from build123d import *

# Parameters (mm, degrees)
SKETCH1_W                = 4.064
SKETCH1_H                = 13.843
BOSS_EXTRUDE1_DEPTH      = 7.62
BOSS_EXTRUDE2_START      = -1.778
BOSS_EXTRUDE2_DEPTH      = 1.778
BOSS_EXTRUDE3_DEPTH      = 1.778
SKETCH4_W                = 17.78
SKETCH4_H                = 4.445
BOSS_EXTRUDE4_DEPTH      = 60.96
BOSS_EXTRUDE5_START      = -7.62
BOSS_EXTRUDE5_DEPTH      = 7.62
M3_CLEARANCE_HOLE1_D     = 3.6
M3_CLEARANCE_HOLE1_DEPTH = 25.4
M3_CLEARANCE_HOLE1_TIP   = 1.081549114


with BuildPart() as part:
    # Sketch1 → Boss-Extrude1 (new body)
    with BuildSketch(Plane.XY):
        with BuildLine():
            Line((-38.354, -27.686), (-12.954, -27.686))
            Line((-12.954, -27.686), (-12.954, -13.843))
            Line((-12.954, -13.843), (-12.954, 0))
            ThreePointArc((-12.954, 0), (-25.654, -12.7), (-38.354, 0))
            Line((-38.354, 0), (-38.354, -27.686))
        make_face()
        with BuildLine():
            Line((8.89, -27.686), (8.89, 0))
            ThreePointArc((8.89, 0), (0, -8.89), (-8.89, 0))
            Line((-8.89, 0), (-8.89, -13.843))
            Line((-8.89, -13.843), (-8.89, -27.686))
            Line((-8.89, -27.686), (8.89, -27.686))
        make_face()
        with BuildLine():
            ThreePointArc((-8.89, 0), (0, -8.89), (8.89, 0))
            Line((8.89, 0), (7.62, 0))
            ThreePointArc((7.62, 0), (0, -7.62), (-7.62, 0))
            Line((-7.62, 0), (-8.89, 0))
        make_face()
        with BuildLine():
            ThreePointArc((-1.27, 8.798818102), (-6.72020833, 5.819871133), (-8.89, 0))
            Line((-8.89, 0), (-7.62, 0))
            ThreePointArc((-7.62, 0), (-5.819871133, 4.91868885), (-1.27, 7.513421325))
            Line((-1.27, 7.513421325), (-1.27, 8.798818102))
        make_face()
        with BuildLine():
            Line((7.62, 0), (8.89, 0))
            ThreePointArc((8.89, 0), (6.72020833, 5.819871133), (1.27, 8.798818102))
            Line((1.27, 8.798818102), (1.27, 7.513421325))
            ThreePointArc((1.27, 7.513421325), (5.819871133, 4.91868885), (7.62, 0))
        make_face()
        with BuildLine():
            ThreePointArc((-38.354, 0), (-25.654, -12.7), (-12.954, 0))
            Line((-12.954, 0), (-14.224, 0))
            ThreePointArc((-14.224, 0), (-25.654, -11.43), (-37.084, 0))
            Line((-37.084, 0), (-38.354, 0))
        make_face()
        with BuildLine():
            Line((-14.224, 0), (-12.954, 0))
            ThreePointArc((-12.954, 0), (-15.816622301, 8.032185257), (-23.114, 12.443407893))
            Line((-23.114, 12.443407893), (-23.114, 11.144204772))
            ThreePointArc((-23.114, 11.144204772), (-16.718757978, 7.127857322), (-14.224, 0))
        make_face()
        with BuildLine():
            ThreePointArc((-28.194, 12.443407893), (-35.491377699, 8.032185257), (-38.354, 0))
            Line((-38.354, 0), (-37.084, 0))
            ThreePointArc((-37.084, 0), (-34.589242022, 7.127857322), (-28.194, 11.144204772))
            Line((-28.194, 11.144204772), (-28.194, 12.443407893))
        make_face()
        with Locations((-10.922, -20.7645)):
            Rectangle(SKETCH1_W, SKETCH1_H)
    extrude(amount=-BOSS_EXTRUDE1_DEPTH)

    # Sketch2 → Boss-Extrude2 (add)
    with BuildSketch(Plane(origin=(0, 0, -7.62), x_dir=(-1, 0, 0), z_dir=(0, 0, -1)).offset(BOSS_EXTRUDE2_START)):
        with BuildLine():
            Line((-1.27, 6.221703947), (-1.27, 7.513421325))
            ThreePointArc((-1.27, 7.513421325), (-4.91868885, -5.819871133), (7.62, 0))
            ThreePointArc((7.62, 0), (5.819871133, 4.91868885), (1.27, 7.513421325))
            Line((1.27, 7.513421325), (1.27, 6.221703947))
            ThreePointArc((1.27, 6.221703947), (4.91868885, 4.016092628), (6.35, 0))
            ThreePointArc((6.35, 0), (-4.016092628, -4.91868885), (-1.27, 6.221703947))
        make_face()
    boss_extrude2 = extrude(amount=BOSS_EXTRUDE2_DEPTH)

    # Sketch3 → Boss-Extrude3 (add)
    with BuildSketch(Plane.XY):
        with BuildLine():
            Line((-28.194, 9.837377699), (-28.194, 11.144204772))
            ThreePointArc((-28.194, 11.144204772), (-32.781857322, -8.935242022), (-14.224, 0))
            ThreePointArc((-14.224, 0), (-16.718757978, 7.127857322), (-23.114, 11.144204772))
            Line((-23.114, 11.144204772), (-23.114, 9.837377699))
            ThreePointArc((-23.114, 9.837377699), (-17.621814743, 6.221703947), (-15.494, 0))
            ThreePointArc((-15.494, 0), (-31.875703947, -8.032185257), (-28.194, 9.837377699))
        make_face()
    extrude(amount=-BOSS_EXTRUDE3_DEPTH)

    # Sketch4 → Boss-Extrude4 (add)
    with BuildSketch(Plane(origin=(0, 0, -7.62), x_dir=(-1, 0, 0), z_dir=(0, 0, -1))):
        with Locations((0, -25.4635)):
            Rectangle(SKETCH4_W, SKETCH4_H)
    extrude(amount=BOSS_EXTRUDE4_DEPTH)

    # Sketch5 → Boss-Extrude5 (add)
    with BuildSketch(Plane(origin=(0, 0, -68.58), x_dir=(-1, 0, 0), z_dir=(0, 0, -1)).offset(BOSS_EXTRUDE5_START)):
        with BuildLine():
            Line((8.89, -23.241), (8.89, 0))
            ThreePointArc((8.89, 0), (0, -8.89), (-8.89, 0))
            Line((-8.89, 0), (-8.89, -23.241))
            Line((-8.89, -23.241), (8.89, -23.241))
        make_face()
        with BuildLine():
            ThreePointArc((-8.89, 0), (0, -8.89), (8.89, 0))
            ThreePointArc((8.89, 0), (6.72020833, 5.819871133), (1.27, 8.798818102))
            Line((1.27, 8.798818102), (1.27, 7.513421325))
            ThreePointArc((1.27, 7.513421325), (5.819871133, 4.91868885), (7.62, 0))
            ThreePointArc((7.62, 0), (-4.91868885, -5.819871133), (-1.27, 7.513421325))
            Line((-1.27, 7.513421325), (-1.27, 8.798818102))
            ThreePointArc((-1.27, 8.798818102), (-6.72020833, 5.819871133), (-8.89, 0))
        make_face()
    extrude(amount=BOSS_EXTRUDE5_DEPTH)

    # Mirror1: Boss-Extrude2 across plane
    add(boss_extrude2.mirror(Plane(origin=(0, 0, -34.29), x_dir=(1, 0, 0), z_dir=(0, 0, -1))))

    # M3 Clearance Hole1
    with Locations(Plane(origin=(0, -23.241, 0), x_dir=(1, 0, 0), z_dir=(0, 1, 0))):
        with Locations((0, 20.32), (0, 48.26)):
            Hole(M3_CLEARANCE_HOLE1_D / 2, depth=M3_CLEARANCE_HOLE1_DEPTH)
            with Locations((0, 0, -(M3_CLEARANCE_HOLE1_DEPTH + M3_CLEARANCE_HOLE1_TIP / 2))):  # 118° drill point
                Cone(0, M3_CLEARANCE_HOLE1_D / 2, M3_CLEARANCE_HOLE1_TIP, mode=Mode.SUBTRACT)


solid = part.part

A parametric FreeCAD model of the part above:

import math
import FreeCAD as App
import Part
import Sketcher
Q = App.Units.Quantity


def add_polygon(sketch, points):
    """Adds a closed chain of lines whose ends are joined by coincident constraints."""
    first, n = sketch.GeometryCount, len(points)
    for a, b in zip(points, points[1:] + points[:1]):
        sketch.addGeometry(Part.LineSegment(App.Vector(*a, 0), App.Vector(*b, 0)), False)
    for i in range(n):
        sketch.addConstraint(Sketcher.Constraint("Coincident", first + i, 2, first + (i + 1) % n, 1))

doc = App.newDocument("Part")
body = doc.addObject("PartDesign::Body", "Body")

sketch1 = body.newObject("Sketcher::SketchObject", "Sketch")
sketch1.AttachmentSupport = (doc.getObject("XY_Plane"), [""])
sketch1.MapMode = "FlatFace"
sketch1.addGeometry([
    Part.LineSegment(App.Vector(-38.354, -27.686, 0), App.Vector(8.89, -27.686, 0)),
    Part.LineSegment(App.Vector(8.89, -27.686, 0), App.Vector(8.89, 0, 0)),
    Part.ArcOfCircle(Part.Circle(App.Vector(0, 0, 0), App.Vector(0, 0, 1), 8.89), math.radians(0), math.radians(81.786789)),
    Part.LineSegment(App.Vector(1.27, 8.798818, 0), App.Vector(1.27, 7.513421, 0)),
    Part.ArcOfCircle(Part.Circle(App.Vector(0, 0, 0), App.Vector(0, 0, 1), 7.62), math.radians(0), math.radians(80.405932)),
    Part.ArcOfCircle(Part.Circle(App.Vector(0, 0, 0), App.Vector(0, 0, 1), 7.62), math.radians(180), math.radians(360)),
    Part.ArcOfCircle(Part.Circle(App.Vector(0, 0, 0), App.Vector(0, 0, 1), 7.62), math.radians(99.594068), math.radians(180)),
    Part.LineSegment(App.Vector(-1.27, 7.513421, 0), App.Vector(-1.27, 8.798818, 0)),
    Part.ArcOfCircle(Part.Circle(App.Vector(0, 0, 0), App.Vector(0, 0, 1), 8.89), math.radians(98.213211), math.radians(180)),
    Part.LineSegment(App.Vector(-8.89, 0, 0), App.Vector(-8.89, -13.843, 0)),
    Part.LineSegment(App.Vector(-8.89, -13.843, 0), App.Vector(-12.954, -13.843, 0)),
    Part.LineSegment(App.Vector(-12.954, -13.843, 0), App.Vector(-12.954, 0, 0)),
    Part.ArcOfCircle(Part.Circle(App.Vector(-25.654, 0, 0), App.Vector(0, 0, 1), 12.7), math.radians(0), math.radians(78.463041)),
    Part.LineSegment(App.Vector(-23.114, 12.443408, 0), App.Vector(-23.114, 11.144205, 0)),
    Part.ArcOfCircle(Part.Circle(App.Vector(-25.654, 0, 0), App.Vector(0, 0, 1), 11.43), math.radians(0), math.radians(77.160412)),
    Part.ArcOfCircle(Part.Circle(App.Vector(-25.654, 0, 0), App.Vector(0, 0, 1), 11.43), math.radians(180), math.radians(360)),
    Part.ArcOfCircle(Part.Circle(App.Vector(-25.654, 0, 0), App.Vector(0, 0, 1), 11.43), math.radians(102.839588), math.radians(180)),
    Part.LineSegment(App.Vector(-28.194, 11.144205, 0), App.Vector(-28.194, 12.443408, 0)),
    Part.ArcOfCircle(Part.Circle(App.Vector(-25.654, 0, 0), App.Vector(0, 0, 1), 12.7), math.radians(101.536959), math.radians(180)),
    Part.LineSegment(App.Vector(-38.354, 0, 0), App.Vector(-38.354, -27.686, 0)),
], False)
sketch1.addConstraint([
    Sketcher.Constraint("Coincident", 0, 2, 1, 1),
    Sketcher.Constraint("Tangent", 1, 2, 2, 1),
    Sketcher.Constraint("Coincident", 2, 2, 3, 1),
    Sketcher.Constraint("Coincident", 3, 2, 4, 2),
    Sketcher.Constraint("Tangent", 4, 1, 5, 2),
    Sketcher.Constraint("Tangent", 5, 1, 6, 2),
    Sketcher.Constraint("Coincident", 6, 1, 7, 1),
    Sketcher.Constraint("Coincident", 7, 2, 8, 1),
    Sketcher.Constraint("Tangent", 8, 2, 9, 1),
    Sketcher.Constraint("Coincident", 9, 2, 10, 1),
    Sketcher.Constraint("Coincident", 10, 2, 11, 1),
    Sketcher.Constraint("Tangent", 11, 2, 12, 1),
    Sketcher.Constraint("Coincident", 12, 2, 13, 1),
    Sketcher.Constraint("Coincident", 13, 2, 14, 2),
    Sketcher.Constraint("Tangent", 14, 1, 15, 2),
    Sketcher.Constraint("Tangent", 15, 1, 16, 2),
    Sketcher.Constraint("Coincident", 16, 1, 17, 1),
    Sketcher.Constraint("Coincident", 17, 2, 18, 1),
    Sketcher.Constraint("Tangent", 18, 2, 19, 1),
    Sketcher.Constraint("Coincident", 19, 2, 0, 1),
    Sketcher.Constraint("Horizontal", 0),
    Sketcher.Constraint("Vertical", 1),
    Sketcher.Constraint("Vertical", 3),
    Sketcher.Constraint("Vertical", 7),
    Sketcher.Constraint("Vertical", 9),
    Sketcher.Constraint("Horizontal", 10),
    Sketcher.Constraint("Vertical", 11),
    Sketcher.Constraint("Vertical", 13),
    Sketcher.Constraint("Vertical", 17),
    Sketcher.Constraint("Vertical", 19),
    Sketcher.Constraint("Coincident", 2, 3, -1, 1),
    Sketcher.Constraint("Coincident", 4, 3, -1, 1),
    Sketcher.Constraint("Coincident", 8, 3, -1, 1),
    Sketcher.Constraint("Coincident", 14, 3, 12, 3),
    Sketcher.Constraint("Coincident", 18, 3, 12, 3),
    Sketcher.Constraint("Equal", 4, 5),
    Sketcher.Constraint("Equal", 5, 6),
    Sketcher.Constraint("Equal", 2, 8),
    Sketcher.Constraint("Equal", 14, 15),
    Sketcher.Constraint("Equal", 15, 16),
    Sketcher.Constraint("Equal", 12, 18),
    Sketcher.Constraint("PointOnObject", 12, 3, -1),
    Sketcher.Constraint("PointOnObject", 4, 1, -1),
    Sketcher.Constraint("PointOnObject", 5, 1, -1),
    Sketcher.Constraint("PointOnObject", 14, 1, -1),
    Sketcher.Constraint("PointOnObject", 15, 1, -1),
    Sketcher.Constraint("Horizontal", 3, 2, 6, 1),
    Sketcher.Constraint("Horizontal", 13, 2, 16, 1),
    Sketcher.Constraint("Radius", 4, Q("0.3 in")),
    Sketcher.Constraint("Radius", 12, Q("0.5 in")),
    Sketcher.Constraint("Radius", 2, Q("0.35 in")),
    Sketcher.Constraint("Radius", 14, Q("0.45 in")),
    Sketcher.Constraint("DistanceX", 0, 1, 0, 2, Q("1.86 in")),
    Sketcher.Constraint("DistanceY", 1, 1, 1, 2, Q("1.09 in")),
    Sketcher.Constraint("DistanceX", 6, 1, 3, 2, Q("0.1 in")),
    Sketcher.Constraint("DistanceX", 12, 3, 12, 2, Q("0.1 in")),
    Sketcher.Constraint("DistanceY", 9, 2, 9, 1, Q("0.545 in")),
])
pad1 = body.newObject("PartDesign::Pad", "Pad")
pad1.Profile = sketch1
pad1.Length = Q("0.3 in")
pad1.Reversed = True

sketch2 = body.newObject("Sketcher::SketchObject", "Sketch001")
sketch2.AttachmentSupport = (doc.getObject("XY_Plane"), [""])
sketch2.MapMode = "FlatFace"
sketch2.AttachmentOffset = App.Placement(App.Vector(0, 0, -0.23 * 25.4), App.Rotation())
sketch2.addGeometry([
    Part.LineSegment(App.Vector(1.27, 6.221704, 0), App.Vector(1.27, 7.513421, 0)),
    Part.ArcOfCircle(Part.Circle(App.Vector(0, 0, 0), App.Vector(0, 0, 1), 7.62), math.radians(180), math.radians(440.405932)),
    Part.ArcOfCircle(Part.Circle(App.Vector(0, 0, 0), App.Vector(0, 0, 1), 7.62), math.radians(99.594068), math.radians(180)),
    Part.LineSegment(App.Vector(-1.27, 7.513421, 0), App.Vector(-1.27, 6.221704, 0)),
    Part.ArcOfCircle(Part.Circle(App.Vector(0, 0, 0), App.Vector(0, 0, 1), 6.35), math.radians(101.536959), math.radians(180)),
    Part.ArcOfCircle(Part.Circle(App.Vector(0, 0, 0), App.Vector(0, 0, 1), 6.35), math.radians(180), math.radians(438.463041)),
], False)
sketch2.addConstraint([
    Sketcher.Constraint("Coincident", 0, 2, 1, 2),
    Sketcher.Constraint("Tangent", 1, 1, 2, 2),
    Sketcher.Constraint("Coincident", 2, 1, 3, 1),
    Sketcher.Constraint("Coincident", 3, 2, 4, 1),
    Sketcher.Constraint("Tangent", 4, 2, 5, 1),
    Sketcher.Constraint("Coincident", 5, 2, 0, 1),
    Sketcher.Constraint("Vertical", 0),
    Sketcher.Constraint("Vertical", 3),
    Sketcher.Constraint("Coincident", 1, 3, -1, 1),
    Sketcher.Constraint("Coincident", 4, 3, -1, 1),
    Sketcher.Constraint("Equal", 1, 2),
    Sketcher.Constraint("Equal", 4, 5),
    Sketcher.Constraint("PointOnObject", 1, 1, -1),
    Sketcher.Constraint("PointOnObject", 4, 2, -1),
    Sketcher.Constraint("Horizontal", 0, 2, 2, 1),
    Sketcher.Constraint("Radius", 1, Q("0.3 in")),
    Sketcher.Constraint("Radius", 4, Q("0.25 in")),
    Sketcher.Constraint("DistanceX", 2, 1, 0, 2, Q("0.1 in")),
])
pad2 = body.newObject("PartDesign::Pad", "Pad001")
pad2.Profile = sketch2
pad2.Length = Q("0.07 in")
pad2.Reversed = True

sketch3 = body.newObject("Sketcher::SketchObject", "Sketch002")
sketch3.AttachmentSupport = (doc.getObject("XY_Plane"), [""])
sketch3.MapMode = "FlatFace"
sketch3.addGeometry([
    Part.LineSegment(App.Vector(-28.194, 9.837378, 0), App.Vector(-28.194, 11.144205, 0)),
    Part.ArcOfCircle(Part.Circle(App.Vector(-25.654, 0, 0), App.Vector(0, 0, 1), 11.43), math.radians(102.839588), math.radians(360)),
    Part.ArcOfCircle(Part.Circle(App.Vector(-25.654, 0, 0), App.Vector(0, 0, 1), 11.43), math.radians(0), math.radians(77.160412)),
    Part.LineSegment(App.Vector(-23.114, 11.144205, 0), App.Vector(-23.114, 9.837378, 0)),
    Part.ArcOfCircle(Part.Circle(App.Vector(-25.654, 0, 0), App.Vector(0, 0, 1), 10.16), math.radians(0), math.radians(75.522488)),
    Part.ArcOfCircle(Part.Circle(App.Vector(-25.654, 0, 0), App.Vector(0, 0, 1), 10.16), math.radians(104.477512), math.radians(360)),
], False)
sketch3.addConstraint([
    Sketcher.Constraint("Coincident", 0, 2, 1, 1),
    Sketcher.Constraint("Tangent", 1, 2, 2, 1),
    Sketcher.Constraint("Coincident", 2, 2, 3, 1),
    Sketcher.Constraint("Coincident", 3, 2, 4, 2),
    Sketcher.Constraint("Tangent", 4, 1, 5, 2),
    Sketcher.Constraint("Coincident", 5, 1, 0, 1),
    Sketcher.Constraint("Vertical", 0),
    Sketcher.Constraint("Vertical", 3),
    Sketcher.Constraint("Coincident", 4, 3, 1, 3),
    Sketcher.Constraint("Equal", 1, 2),
    Sketcher.Constraint("Equal", 4, 5),
    Sketcher.Constraint("PointOnObject", 1, 3, -1),
    Sketcher.Constraint("PointOnObject", 1, 2, -1),
    Sketcher.Constraint("PointOnObject", 4, 1, -1),
    Sketcher.Constraint("Horizontal", 0, 2, 2, 2),
    Sketcher.Constraint("Radius", 4, Q("0.4 in")),
    Sketcher.Constraint("Radius", 1, Q("0.45 in")),
    Sketcher.Constraint("DistanceX", 0, 2, 4, 3, Q("0.1 in")),
    Sketcher.Constraint("DistanceX", 1, 3, -1, 1, Q("1.01 in")),
])
pad3 = body.newObject("PartDesign::Pad", "Pad002")
pad3.Profile = sketch3
pad3.Length = Q("0.07 in")
pad3.Reversed = True

sketch4 = body.newObject("Sketcher::SketchObject", "Sketch003")
sketch4.AttachmentSupport = (doc.getObject("XY_Plane"), [""])
sketch4.MapMode = "FlatFace"
sketch4.AttachmentOffset = App.Placement(App.Vector(0, 0, -0.3 * 25.4), App.Rotation())
add_polygon(sketch4, [(8.89, -23.241), (8.89, -27.686), (-8.89, -27.686), (-8.89, -23.241)])
sketch4.addConstraint([
    Sketcher.Constraint("Vertical", 0),
    Sketcher.Constraint("Horizontal", 1),
    Sketcher.Constraint("Vertical", 2),
    Sketcher.Constraint("Horizontal", 3),
    Sketcher.Constraint("DistanceX", 1, 2, 1, 1, Q("0.7 in")),
    Sketcher.Constraint("DistanceY", 0, 2, 0, 1, Q("0.175 in")),
    Sketcher.Constraint("DistanceX", -1, 1, 0, 2, Q("0.35 in")),
    Sketcher.Constraint("DistanceY", 0, 2, -1, 1, Q("1.09 in")),
])
pad4 = body.newObject("PartDesign::Pad", "Pad003")
pad4.Profile = sketch4
pad4.Length = Q("2.4 in")
pad4.Reversed = True

sketch5 = body.newObject("Sketcher::SketchObject", "Sketch004")
sketch5.AttachmentSupport = (doc.getObject("XY_Plane"), [""])
sketch5.MapMode = "FlatFace"
sketch5.AttachmentOffset = App.Placement(App.Vector(0, 0, -2.4 * 25.4), App.Rotation())
sketch5.addGeometry([
    Part.LineSegment(App.Vector(-8.89, -23.241, 0), App.Vector(-8.89, 0, 0)),
    Part.ArcOfCircle(Part.Circle(App.Vector(0, 0, 0), App.Vector(0, 0, 1), 8.89), math.radians(98.213211), math.radians(180)),
    Part.LineSegment(App.Vector(-1.27, 8.798818, 0), App.Vector(-1.27, 7.513421, 0)),
    Part.ArcOfCircle(Part.Circle(App.Vector(0, 0, 0), App.Vector(0, 0, 1), 7.62), math.radians(99.594068), math.radians(180)),
    Part.ArcOfCircle(Part.Circle(App.Vector(0, 0, 0), App.Vector(0, 0, 1), 7.62), math.radians(180), math.radians(440.405932)),
    Part.LineSegment(App.Vector(1.27, 7.513421, 0), App.Vector(1.27, 8.798818, 0)),
    Part.ArcOfCircle(Part.Circle(App.Vector(0, 0, 0), App.Vector(0, 0, 1), 8.89), math.radians(0), math.radians(81.786789)),
    Part.LineSegment(App.Vector(8.89, 0, 0), App.Vector(8.89, -23.241, 0)),
    Part.LineSegment(App.Vector(8.89, -23.241, 0), App.Vector(-8.89, -23.241, 0)),
], False)
sketch5.addConstraint([
    Sketcher.Constraint("Tangent", 0, 2, 1, 2),
    Sketcher.Constraint("Coincident", 1, 1, 2, 1),
    Sketcher.Constraint("Coincident", 2, 2, 3, 1),
    Sketcher.Constraint("Tangent", 3, 2, 4, 1),
    Sketcher.Constraint("Coincident", 4, 2, 5, 1),
    Sketcher.Constraint("Coincident", 5, 2, 6, 2),
    Sketcher.Constraint("Tangent", 6, 1, 7, 1),
    Sketcher.Constraint("Coincident", 7, 2, 8, 1),
    Sketcher.Constraint("Coincident", 8, 2, 0, 1),
    Sketcher.Constraint("Vertical", 0),
    Sketcher.Constraint("Vertical", 2),
    Sketcher.Constraint("Vertical", 5),
    Sketcher.Constraint("Vertical", 7),
    Sketcher.Constraint("Horizontal", 8),
    Sketcher.Constraint("Coincident", 1, 3, -1, 1),
    Sketcher.Constraint("Coincident", 3, 3, -1, 1),
    Sketcher.Constraint("Coincident", 6, 3, -1, 1),
    Sketcher.Constraint("Equal", 3, 4),
    Sketcher.Constraint("Equal", 1, 6),
    Sketcher.Constraint("PointOnObject", 3, 2, -1),
    Sketcher.Constraint("Horizontal", 2, 2, 4, 2),
    Sketcher.Constraint("Radius", 3, Q("0.3 in")),
    Sketcher.Constraint("Radius", 1, Q("0.35 in")),
    Sketcher.Constraint("DistanceX", 0, 2, 1, 1, Q("0.3 in")),
    Sketcher.Constraint("DistanceY", 0, 1, 0, 2, Q("0.915 in")),
])
pad5 = body.newObject("PartDesign::Pad", "Pad004")
pad5.Profile = sketch5
pad5.Length = Q("0.3 in")
pad5.Reversed = True
doc.recompute()

datumplane = body.newObject("PartDesign::Plane", "DatumPlane")
datumplane.AttachmentSupport = (doc.getObject("XY_Plane"), [""])
datumplane.MapMode = "FlatFace"
datumplane.AttachmentOffset = App.Placement(App.Vector(0, 0, -1.35 * 25.4), App.Rotation())
mirrored = body.newObject("PartDesign::Mirrored", "Mirrored")
mirrored.Originals = [pad2]
mirrored.MirrorPlane = (datumplane, [""])
body.Tip = mirrored

sketch6 = body.newObject("Sketcher::SketchObject", "Sketch005")
sketch6.AttachmentSupport = (doc.getObject("XZ_Plane"), [""])
sketch6.MapMode = "FlatFace"
sketch6.AttachmentOffset = App.Placement(App.Vector(0, 0, 0.915 * 25.4), App.Rotation())
sketch6.addGeometry([
    Part.Circle(App.Vector(0, -20.32, 0), App.Vector(0, 0, 1), 1.8),
    Part.Circle(App.Vector(0, -48.26, 0), App.Vector(0, 0, 1), 1.8),
], False)
sketch6.addConstraint([
    Sketcher.Constraint("Equal", 0, 1),
    Sketcher.Constraint("PointOnObject", 0, 3, -2),
    Sketcher.Constraint("PointOnObject", 1, 3, -2),
    Sketcher.Constraint("DistanceY", 0, 3, -1, 1, Q("0.8 in")),
    Sketcher.Constraint("DistanceY", 1, 3, -1, 1, Q("1.9 in")),
    Sketcher.Constraint("Diameter", 0, Q("3.6 mm")),
])
doc.recompute()
hole = body.newObject("PartDesign::Hole", "Hole")
hole.Profile = sketch6
hole.ThreadType = "None"
hole.Diameter = 3.6
hole.DepthType = "Dimension"
hole.Depth = Q("1 in")
hole.DrillPoint = "Angled"
hole.DrillPointAngle = 118
hole.Reversed = True

doc.recompute()
